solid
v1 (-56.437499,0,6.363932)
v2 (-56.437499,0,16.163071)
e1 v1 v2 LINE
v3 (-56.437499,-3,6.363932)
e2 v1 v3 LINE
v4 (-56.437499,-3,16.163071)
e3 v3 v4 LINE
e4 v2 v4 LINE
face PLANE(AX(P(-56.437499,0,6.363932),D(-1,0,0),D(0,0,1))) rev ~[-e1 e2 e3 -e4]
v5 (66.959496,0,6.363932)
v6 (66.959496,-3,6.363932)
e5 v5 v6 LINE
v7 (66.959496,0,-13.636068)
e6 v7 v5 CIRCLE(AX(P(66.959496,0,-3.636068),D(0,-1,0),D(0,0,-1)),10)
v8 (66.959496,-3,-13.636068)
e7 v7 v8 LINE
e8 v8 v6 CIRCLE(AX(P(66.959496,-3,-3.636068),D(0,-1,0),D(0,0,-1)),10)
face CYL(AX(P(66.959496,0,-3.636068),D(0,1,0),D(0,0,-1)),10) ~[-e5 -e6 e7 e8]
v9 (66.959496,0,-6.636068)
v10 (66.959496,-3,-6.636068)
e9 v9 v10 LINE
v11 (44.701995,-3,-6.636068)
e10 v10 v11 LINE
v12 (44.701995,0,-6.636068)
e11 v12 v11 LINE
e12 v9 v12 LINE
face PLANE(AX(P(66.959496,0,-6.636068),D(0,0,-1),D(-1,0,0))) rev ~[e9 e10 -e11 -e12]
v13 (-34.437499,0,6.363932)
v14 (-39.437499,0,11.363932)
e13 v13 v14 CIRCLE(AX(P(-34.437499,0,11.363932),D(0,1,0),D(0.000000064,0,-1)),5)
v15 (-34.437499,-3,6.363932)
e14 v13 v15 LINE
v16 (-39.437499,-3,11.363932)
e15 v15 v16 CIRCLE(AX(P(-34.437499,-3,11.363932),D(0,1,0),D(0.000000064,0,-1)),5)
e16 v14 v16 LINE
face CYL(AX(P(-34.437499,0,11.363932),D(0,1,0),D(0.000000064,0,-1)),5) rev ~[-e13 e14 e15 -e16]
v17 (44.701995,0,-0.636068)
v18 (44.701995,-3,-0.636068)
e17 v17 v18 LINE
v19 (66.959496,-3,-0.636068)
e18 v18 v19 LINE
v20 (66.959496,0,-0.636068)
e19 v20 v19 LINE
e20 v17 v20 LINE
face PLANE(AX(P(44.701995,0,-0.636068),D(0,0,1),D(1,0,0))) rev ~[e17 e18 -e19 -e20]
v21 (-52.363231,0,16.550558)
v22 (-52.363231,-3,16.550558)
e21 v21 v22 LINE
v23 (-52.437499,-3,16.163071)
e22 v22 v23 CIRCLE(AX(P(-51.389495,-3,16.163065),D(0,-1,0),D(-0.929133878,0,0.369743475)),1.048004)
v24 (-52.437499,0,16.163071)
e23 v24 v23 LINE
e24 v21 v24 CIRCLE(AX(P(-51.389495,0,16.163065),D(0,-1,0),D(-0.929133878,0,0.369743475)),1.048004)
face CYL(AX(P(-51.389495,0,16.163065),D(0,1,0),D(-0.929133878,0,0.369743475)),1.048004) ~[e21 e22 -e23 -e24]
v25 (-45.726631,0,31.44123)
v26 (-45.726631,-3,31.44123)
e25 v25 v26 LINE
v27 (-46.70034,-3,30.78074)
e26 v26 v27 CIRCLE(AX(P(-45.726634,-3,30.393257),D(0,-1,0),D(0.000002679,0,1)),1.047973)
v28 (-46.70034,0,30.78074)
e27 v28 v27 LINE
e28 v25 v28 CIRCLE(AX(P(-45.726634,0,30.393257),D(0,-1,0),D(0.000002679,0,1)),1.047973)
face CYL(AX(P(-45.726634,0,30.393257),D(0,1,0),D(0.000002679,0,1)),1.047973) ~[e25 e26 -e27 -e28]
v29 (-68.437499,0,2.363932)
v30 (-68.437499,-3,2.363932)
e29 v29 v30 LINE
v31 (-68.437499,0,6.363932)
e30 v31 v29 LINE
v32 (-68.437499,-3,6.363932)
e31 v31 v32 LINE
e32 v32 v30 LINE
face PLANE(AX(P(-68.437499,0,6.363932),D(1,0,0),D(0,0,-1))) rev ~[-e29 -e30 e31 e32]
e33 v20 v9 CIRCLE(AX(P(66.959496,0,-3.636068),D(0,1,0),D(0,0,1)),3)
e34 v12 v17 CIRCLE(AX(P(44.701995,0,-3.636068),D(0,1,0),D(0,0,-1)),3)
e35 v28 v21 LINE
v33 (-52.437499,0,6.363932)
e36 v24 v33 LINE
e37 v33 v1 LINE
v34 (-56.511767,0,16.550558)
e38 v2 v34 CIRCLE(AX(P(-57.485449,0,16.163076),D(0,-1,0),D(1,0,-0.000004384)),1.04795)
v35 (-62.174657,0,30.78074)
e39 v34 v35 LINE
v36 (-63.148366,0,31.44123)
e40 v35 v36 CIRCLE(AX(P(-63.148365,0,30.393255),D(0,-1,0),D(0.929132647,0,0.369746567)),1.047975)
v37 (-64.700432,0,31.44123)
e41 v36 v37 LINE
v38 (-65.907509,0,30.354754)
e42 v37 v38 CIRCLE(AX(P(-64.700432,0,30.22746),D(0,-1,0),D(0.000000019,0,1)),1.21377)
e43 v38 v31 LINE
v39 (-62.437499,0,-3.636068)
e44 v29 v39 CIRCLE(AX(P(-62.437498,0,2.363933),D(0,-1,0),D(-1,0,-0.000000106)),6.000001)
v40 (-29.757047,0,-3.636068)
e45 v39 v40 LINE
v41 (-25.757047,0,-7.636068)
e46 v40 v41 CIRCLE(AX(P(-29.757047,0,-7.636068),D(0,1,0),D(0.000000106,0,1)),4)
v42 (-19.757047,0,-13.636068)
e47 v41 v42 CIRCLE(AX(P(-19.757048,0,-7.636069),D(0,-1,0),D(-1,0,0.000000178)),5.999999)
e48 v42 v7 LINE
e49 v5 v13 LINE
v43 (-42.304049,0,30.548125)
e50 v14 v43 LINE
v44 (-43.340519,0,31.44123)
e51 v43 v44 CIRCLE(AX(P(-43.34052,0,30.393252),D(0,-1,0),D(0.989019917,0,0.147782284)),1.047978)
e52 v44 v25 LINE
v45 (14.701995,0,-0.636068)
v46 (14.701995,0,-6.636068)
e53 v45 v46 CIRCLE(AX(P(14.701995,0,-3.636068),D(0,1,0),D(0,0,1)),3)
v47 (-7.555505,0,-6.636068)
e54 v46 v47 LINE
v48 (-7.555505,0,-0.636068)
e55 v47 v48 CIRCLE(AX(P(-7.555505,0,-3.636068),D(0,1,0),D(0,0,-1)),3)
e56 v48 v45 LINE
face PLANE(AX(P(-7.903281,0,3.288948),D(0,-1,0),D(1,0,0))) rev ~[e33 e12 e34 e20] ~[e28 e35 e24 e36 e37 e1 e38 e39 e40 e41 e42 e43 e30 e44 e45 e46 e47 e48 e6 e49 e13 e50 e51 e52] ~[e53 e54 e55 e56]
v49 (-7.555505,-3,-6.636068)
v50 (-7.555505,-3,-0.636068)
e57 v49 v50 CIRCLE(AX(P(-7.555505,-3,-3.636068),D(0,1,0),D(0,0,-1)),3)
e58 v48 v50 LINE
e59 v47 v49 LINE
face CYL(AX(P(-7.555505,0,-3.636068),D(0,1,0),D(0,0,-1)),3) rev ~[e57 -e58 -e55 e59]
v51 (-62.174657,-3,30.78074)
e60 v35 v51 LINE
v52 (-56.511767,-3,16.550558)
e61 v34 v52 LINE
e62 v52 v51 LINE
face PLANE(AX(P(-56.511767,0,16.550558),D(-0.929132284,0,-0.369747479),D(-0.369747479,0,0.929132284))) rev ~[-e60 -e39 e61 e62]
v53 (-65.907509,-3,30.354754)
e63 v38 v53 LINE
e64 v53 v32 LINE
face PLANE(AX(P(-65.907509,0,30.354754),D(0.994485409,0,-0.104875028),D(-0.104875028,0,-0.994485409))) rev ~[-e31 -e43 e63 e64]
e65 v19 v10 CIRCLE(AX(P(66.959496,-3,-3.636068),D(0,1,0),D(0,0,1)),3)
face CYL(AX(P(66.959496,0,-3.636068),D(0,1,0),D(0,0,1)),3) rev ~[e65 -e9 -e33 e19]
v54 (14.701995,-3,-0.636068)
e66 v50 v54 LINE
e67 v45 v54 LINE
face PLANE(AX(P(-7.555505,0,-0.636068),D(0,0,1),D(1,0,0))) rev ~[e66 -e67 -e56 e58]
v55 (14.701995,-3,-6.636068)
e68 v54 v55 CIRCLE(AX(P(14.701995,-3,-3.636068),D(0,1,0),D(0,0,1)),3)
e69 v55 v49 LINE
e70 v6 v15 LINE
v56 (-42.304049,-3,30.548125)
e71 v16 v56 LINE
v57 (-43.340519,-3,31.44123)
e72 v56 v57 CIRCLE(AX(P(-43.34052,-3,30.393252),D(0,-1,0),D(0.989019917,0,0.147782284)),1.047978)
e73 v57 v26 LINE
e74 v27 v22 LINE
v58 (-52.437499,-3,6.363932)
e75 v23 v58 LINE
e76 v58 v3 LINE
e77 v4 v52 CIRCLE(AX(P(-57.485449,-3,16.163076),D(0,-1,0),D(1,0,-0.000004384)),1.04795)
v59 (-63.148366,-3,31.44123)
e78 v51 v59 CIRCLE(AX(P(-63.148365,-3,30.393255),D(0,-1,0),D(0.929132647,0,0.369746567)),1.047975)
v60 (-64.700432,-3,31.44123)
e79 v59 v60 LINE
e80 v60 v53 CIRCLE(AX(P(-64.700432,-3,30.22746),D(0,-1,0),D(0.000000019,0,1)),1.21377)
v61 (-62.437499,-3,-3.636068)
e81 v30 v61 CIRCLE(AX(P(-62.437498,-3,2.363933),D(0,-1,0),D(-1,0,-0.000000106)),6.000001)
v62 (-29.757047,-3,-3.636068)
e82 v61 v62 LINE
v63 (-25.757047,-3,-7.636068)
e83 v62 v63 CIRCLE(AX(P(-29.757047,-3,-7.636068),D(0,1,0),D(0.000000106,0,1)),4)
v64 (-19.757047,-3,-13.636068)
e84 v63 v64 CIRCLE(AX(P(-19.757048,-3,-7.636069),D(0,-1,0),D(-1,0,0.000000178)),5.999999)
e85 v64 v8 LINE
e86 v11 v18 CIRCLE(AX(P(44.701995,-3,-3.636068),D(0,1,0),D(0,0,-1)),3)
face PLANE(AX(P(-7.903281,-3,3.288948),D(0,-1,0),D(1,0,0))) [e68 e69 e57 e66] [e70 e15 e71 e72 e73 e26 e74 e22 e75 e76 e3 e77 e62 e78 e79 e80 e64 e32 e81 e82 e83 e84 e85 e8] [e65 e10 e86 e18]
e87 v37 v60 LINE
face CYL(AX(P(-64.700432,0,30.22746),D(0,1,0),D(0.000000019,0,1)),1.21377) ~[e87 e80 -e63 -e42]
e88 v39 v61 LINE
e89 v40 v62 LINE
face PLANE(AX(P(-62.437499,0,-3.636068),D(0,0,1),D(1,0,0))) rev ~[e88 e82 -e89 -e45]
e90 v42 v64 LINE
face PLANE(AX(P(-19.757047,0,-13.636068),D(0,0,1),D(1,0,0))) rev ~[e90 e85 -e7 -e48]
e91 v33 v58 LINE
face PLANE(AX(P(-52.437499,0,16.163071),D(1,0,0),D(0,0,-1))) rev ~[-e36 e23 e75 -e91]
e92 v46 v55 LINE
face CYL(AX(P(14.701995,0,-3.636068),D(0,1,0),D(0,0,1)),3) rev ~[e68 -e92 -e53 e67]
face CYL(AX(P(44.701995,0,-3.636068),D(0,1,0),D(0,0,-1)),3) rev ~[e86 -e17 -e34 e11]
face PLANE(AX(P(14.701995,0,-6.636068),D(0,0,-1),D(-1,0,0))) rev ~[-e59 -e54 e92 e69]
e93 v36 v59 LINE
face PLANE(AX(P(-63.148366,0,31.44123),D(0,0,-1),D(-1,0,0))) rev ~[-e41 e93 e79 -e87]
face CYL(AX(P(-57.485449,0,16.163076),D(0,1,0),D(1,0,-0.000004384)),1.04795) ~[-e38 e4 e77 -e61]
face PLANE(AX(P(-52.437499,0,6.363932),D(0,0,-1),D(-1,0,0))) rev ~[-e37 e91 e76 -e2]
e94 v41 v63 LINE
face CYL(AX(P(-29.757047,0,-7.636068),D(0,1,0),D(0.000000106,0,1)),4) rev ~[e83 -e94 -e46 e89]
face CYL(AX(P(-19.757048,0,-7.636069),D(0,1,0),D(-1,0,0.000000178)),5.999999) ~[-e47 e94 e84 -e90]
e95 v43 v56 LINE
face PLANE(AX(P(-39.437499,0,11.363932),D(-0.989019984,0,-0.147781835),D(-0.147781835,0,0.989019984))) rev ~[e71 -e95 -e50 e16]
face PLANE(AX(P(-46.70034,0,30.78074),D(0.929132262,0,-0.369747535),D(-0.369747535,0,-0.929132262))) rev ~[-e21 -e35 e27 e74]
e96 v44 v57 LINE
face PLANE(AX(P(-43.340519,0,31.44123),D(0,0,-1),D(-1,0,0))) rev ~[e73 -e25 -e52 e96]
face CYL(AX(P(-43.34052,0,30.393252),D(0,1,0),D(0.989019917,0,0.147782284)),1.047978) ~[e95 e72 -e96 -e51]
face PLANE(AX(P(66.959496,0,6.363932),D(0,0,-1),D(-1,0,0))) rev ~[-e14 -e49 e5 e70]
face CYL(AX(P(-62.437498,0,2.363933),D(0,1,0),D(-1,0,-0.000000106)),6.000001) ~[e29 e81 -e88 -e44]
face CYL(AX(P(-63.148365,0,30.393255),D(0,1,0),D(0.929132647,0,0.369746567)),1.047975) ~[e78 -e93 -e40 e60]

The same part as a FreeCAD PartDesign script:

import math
import FreeCAD as App
import Part
import Sketcher

V = App.Vector
Q = App.Units.Quantity

doc = App.newDocument("Part")
body = doc.addObject("PartDesign::Body", "Body")

# Sketch on XZ plane
sketch1 = body.newObject("Sketcher::SketchObject", "Sketch")
sketch1.AttachmentSupport = (doc.getObject("XZ_Plane"), [""])
sketch1.MapMode = "FlatFace"
sketch1.addGeometry(Part.LineSegment(V(66.96, 6.36, 0), V(-34.44, 6.36, 0)), False)
sketch1.addGeometry(Part.ArcOfCircle(Part.Circle(V(-34.44, 11.36, 0), V(0, 0, 1), 5), math.radians(180), math.radians(270)), False)
sketch1.addGeometry(Part.LineSegment(V(-39.44, 11.36, 0), V(-42.3, 30.55, 0)), False)
sketch1.addGeometry(Part.ArcOfCircle(Part.Circle(V(-43.34, 30.39, 0), V(0, 0, 1), 1.05), math.radians(8), math.radians(90)), False)
sketch1.addGeometry(Part.LineSegment(V(-43.34, 31.44, 0), V(-45.73, 31.44, 0)), False)
sketch1.addGeometry(Part.ArcOfCircle(Part.Circle(V(-45.73, 30.39, 0), V(0, 0, 1), 1.05), math.radians(90), math.radians(158)), False)
sketch1.addGeometry(Part.LineSegment(V(-46.7, 30.78, 0), V(-52.36, 16.55, 0)), False)
sketch1.addGeometry(Part.ArcOfCircle(Part.Circle(V(-51.39, 16.16, 0), V(0, 0, 1), 1.05), math.radians(158), math.radians(180)), False)
sketch1.addGeometry(Part.LineSegment(V(-52.44, 16.16, 0), V(-52.44, 6.36, 0)), False)
sketch1.addGeometry(Part.LineSegment(V(-52.44, 6.36, 0), V(-56.44, 6.36, 0)), False)
sketch1.addGeometry(Part.LineSegment(V(-56.44, 6.36, 0), V(-56.44, 16.16, 0)), False)
sketch1.addGeometry(Part.ArcOfCircle(Part.Circle(V(-57.49, 16.16, 0), V(0, 0, 1), 1.05), math.radians(0), math.radians(22)), False)
sketch1.addGeometry(Part.LineSegment(V(-56.51, 16.55, 0), V(-62.17, 30.78, 0)), False)
sketch1.addGeometry(Part.ArcOfCircle(Part.Circle(V(-63.15, 30.39, 0), V(0, 0, 1), 1.05), math.radians(22), math.radians(90)), False)
sketch1.addGeometry(Part.LineSegment(V(-63.15, 31.44, 0), V(-64.7, 31.44, 0)), False)
sketch1.addGeometry(Part.ArcOfCircle(Part.Circle(V(-64.7, 30.23, 0), V(0, 0, 1), 1.21), math.radians(90), math.radians(174)), False)
sketch1.addGeometry(Part.LineSegment(V(-65.91, 30.35, 0), V(-68.44, 6.36, 0)), False)
sketch1.addGeometry(Part.LineSegment(V(-68.44, 6.36, 0), V(-68.44, 2.36, 0)), False)
sketch1.addGeometry(Part.ArcOfCircle(Part.Circle(V(-62.44, 2.36, 0), V(0, 0, 1), 6), math.radians(-180), math.radians(-90)), False)
sketch1.addGeometry(Part.LineSegment(V(-62.44, -3.64, 0), V(-29.76, -3.64, 0)), False)
sketch1.addGeometry(Part.ArcOfCircle(Part.Circle(V(-29.76, -7.64, 0), V(0, 0, 1), 4), math.radians(0), math.radians(90)), False)
sketch1.addGeometry(Part.ArcOfCircle(Part.Circle(V(-19.76, -7.64, 0), V(0, 0, 1), 6), math.radians(180), math.radians(270)), False)
sketch1.addGeometry(Part.LineSegment(V(-19.76, -13.64, 0), V(66.96, -13.64, 0)), False)
sketch1.addGeometry(Part.ArcOfCircle(Part.Circle(V(66.96, -3.64, 0), V(0, 0, 1), 10), math.radians(-90), math.radians(90)), False)
sketch1.addGeometry(Part.ArcOfCircle(Part.Circle(V(14.7, -3.64, 0), V(0, 0, 1), 3), math.radians(-90), math.radians(90)), False)
sketch1.addGeometry(Part.LineSegment(V(14.7, -6.64, 0), V(-7.56, -6.64, 0)), False)
sketch1.addGeometry(Part.ArcOfCircle(Part.Circle(V(-7.56, -3.64, 0), V(0, 0, 1), 3), math.radians(90), math.radians(270)), False)
sketch1.addGeometry(Part.LineSegment(V(-7.56, -0.64, 0), V(14.7, -0.64, 0)), False)
sketch1.addGeometry(Part.LineSegment(V(44.7, -0.64, 0), V(66.96, -0.64, 0)), False)
sketch1.addGeometry(Part.ArcOfCircle(Part.Circle(V(66.96, -3.64, 0), V(0, 0, 1), 3), math.radians(-90), math.radians(90)), False)
sketch1.addGeometry(Part.LineSegment(V(66.96, -6.64, 0), V(44.7, -6.64, 0)), False)
sketch1.addGeometry(Part.ArcOfCircle(Part.Circle(V(44.7, -3.64, 0), V(0, 0, 1), 3), math.radians(90), math.radians(270)), False)
sketch1.addConstraint(Sketcher.Constraint("Tangent", 0, 2, 1, 2))
sketch1.addConstraint(Sketcher.Constraint("Coincident", 1, 1, 2, 1))
sketch1.addConstraint(Sketcher.Constraint("Tangent", 2, 2, 3, 1))
sketch1.addConstraint(Sketcher.Constraint("Tangent", 3, 2, 4, 1))
sketch1.addConstraint(Sketcher.Constraint("Coincident", 4, 2, 5, 1))
sketch1.addConstraint(Sketcher.Constraint("Coincident", 5, 2, 6, 1))
sketch1.addConstraint(Sketcher.Constraint("Coincident", 6, 2, 7, 1))
sketch1.addConstraint(Sketcher.Constraint("Coincident", 7, 2, 8, 1))
sketch1.addConstraint(Sketcher.Constraint("Coincident", 8, 2, 9, 1))
sketch1.addConstraint(Sketcher.Constraint("Coincident", 9, 2, 10, 1))
sketch1.addConstraint(Sketcher.Constraint("Coincident", 10, 2, 11, 1))
sketch1.addConstraint(Sketcher.Constraint("Coincident", 11, 2, 12, 1))
sketch1.addConstraint(Sketcher.Constraint("Tangent", 12, 2, 13, 1))
sketch1.addConstraint(Sketcher.Constraint("Tangent", 13, 2, 14, 1))
sketch1.addConstraint(Sketcher.Constraint("Tangent", 14, 2, 15, 1))
sketch1.addConstraint(Sketcher.Constraint("Tangent", 15, 2, 16, 1))
sketch1.addConstraint(Sketcher.Constraint("Coincident", 16, 2, 17, 1))
sketch1.addConstraint(Sketcher.Constraint("Tangent", 17, 2, 18, 1))
sketch1.addConstraint(Sketcher.Constraint("Tangent", 18, 2, 19, 1))
sketch1.addConstraint(Sketcher.Constraint("Tangent", 19, 2, 20, 2))
sketch1.addConstraint(Sketcher.Constraint("Tangent", 20, 1, 21, 1))
sketch1.addConstraint(Sketcher.Constraint("Tangent", 21, 2, 22, 1))
sketch1.addConstraint(Sketcher.Constraint("Tangent", 22, 2, 23, 1))
sketch1.addConstraint(Sketcher.Constraint("Tangent", 23, 2, 0, 1))
sketch1.addConstraint(Sketcher.Constraint("Tangent", 24, 1, 25, 1))
sketch1.addConstraint(Sketcher.Constraint("Tangent", 25, 2, 26, 2))
sketch1.addConstraint(Sketcher.Constraint("Tangent", 26, 1, 27, 1))
sketch1.addConstraint(Sketcher.Constraint("Tangent", 27, 2, 24, 2))
sketch1.addConstraint(Sketcher.Constraint("Tangent", 28, 2, 29, 2))
sketch1.addConstraint(Sketcher.Constraint("Tangent", 29, 1, 30, 1))
sketch1.addConstraint(Sketcher.Constraint("Tangent", 30, 2, 31, 2))
sketch1.addConstraint(Sketcher.Constraint("Tangent", 31, 1, 28, 1))
sketch1.addConstraint(Sketcher.Constraint("Horizontal", 0))
sketch1.addConstraint(Sketcher.Constraint("Horizontal", 4))
sketch1.addConstraint(Sketcher.Constraint("Vertical", 8))
sketch1.addConstraint(Sketcher.Constraint("Horizontal", 9))
sketch1.addConstraint(Sketcher.Constraint("Vertical", 10))
sketch1.addConstraint(Sketcher.Constraint("Horizontal", 14))
sketch1.addConstraint(Sketcher.Constraint("Vertical", 17))
sketch1.addConstraint(Sketcher.Constraint("Horizontal", 19))
sketch1.addConstraint(Sketcher.Constraint("Horizontal", 22))
sketch1.addConstraint(Sketcher.Constraint("Horizontal", 25))
sketch1.addConstraint(Sketcher.Constraint("Horizontal", 27))
sketch1.addConstraint(Sketcher.Constraint("Horizontal", 28))
sketch1.addConstraint(Sketcher.Constraint("Horizontal", 30))
sketch1.addConstraint(Sketcher.Constraint("Coincident", 29, 3, 23, 3))
sketch1.addConstraint(Sketcher.Constraint("Equal", 18, 21))
sketch1.addConstraint(Sketcher.Constraint("Equal", 26, 29))
sketch1.addConstraint(Sketcher.Constraint("Horizontal", 20, 3, 21, 3))
sketch1.addConstraint(Sketcher.Constraint("Horizontal", 23, 3, 24, 3))
sketch1.addConstraint(Sketcher.Constraint("Horizontal", 0, 2, 8, 2))
sketch1.addConstraint(Sketcher.Constraint("Horizontal", 7, 2, 10, 2))
sketch1.addConstraint(Sketcher.Constraint("Horizontal", 6, 2, 11, 2))
sketch1.addConstraint(Sketcher.Constraint("Horizontal", 5, 2, 12, 2))
sketch1.addConstraint(Sketcher.Constraint("Horizontal", 4, 2, 13, 2))
sketch1.addConstraint(Sketcher.Constraint("Horizontal", 9, 2, 16, 2))
sketch1.addConstraint(Sketcher.Constraint("Horizontal", 31, 3, 18, 2))
sketch1.addConstraint(Sketcher.Constraint("Equal", 27, 28))
sketch1.addConstraint(Sketcher.Constraint("Equal", 9, 17))
sketch1.addConstraint(Sketcher.Constraint("Equal", 6, 12))
sketch1.addConstraint(Sketcher.Constraint("Radius", 1, Q("5 mm")))
sketch1.addConstraint(Sketcher.Constraint("Radius", 18, Q("6.000001 mm")))
sketch1.addConstraint(Sketcher.Constraint("Radius", 20, Q("4 mm")))
sketch1.addConstraint(Sketcher.Constraint("Radius", 24, Q("3 mm")))
sketch1.addConstraint(Sketcher.Constraint("DistanceX", 18, 3, 1, 3, Q("27.999999 mm")))
sketch1.addConstraint(Sketcher.Constraint("DistanceX", 24, 3, 31, 3, Q("30 mm")))
sketch1.addConstraint(Sketcher.Constraint("DistanceY", 0, 2, 1, 1, Q("5 mm")))
sketch1.addConstraint(Sketcher.Constraint("DistanceX", 7, 2, 1, 1, Q("13 mm")))
sketch1.addConstraint(Sketcher.Constraint("Radius", 11, Q("1.04795 mm")))
sketch1.addConstraint(Sketcher.Constraint("Radius", 15, Q("1.21377 mm")))
sketch1.addConstraint(Sketcher.Constraint("DistanceX", 25, 2, 25, 1, Q("22.2575 mm")))
sketch1.addConstraint(Sketcher.Constraint("Radius", 3, Q("1.047978 mm")))
sketch1.addConstraint(Sketcher.Constraint("Radius", 5, Q("1.047973 mm")))
sketch1.addConstraint(Sketcher.Constraint("Radius", 7, Q("1.048004 mm")))
sketch1.addConstraint(Sketcher.Constraint("Radius", 13, Q("1.047975 mm")))
sketch1.addConstraint(Sketcher.Constraint("DistanceX", 4, 2, 4, 1, Q("2.386112 mm")))
sketch1.addConstraint(Sketcher.Constraint("DistanceY", 8, 2, 8, 1, Q("9.799139 mm")))
sketch1.addConstraint(Sketcher.Constraint("DistanceX", 1, 3, -1, 1, Q("34.437499 mm")))
sketch1.addConstraint(Sketcher.Constraint("DistanceX", 15, 3, 5, 3, Q("18.973798 mm")))
sketch1.addConstraint(Sketcher.Constraint("DistanceX", 11, 3, 20, 3, Q("27.728402 mm")))
sketch1.addConstraint(Sketcher.Constraint("DistanceY", 6, 2, 5, 3, Q("13.842699 mm")))
sketch1.addConstraint(Sketcher.Constraint("DistanceX", 13, 2, 11, 2, Q("6.636599 mm")))
sketch1.addConstraint(Sketcher.Constraint("DistanceY", 15, 2, 13, 3, Q("0.038501 mm")))
sketch1.addConstraint(Sketcher.Constraint("DistanceX", 0, 2, 0, 1, Q("101.396995 mm")))
sketch1.addConstraint(Sketcher.Constraint("DistanceX", 14, 2, 14, 1, Q("1.552066 mm")))
sketch1.addConstraint(Sketcher.Constraint("DistanceY", -1, 1, 1, 3, Q("11.363932 mm")))
sketch1.addConstraint(Sketcher.Constraint("DistanceX", 3, 3, -1, 1, Q("43.34052 mm")))
sketch1.addConstraint(Sketcher.Constraint("DistanceY", -1, 1, 15, 3, Q("30.22746 mm")))
pad1 = body.newObject("PartDesign::Pad", "Pad")
pad1.Profile = sketch1
pad1.Length = 3

doc.recompute()
